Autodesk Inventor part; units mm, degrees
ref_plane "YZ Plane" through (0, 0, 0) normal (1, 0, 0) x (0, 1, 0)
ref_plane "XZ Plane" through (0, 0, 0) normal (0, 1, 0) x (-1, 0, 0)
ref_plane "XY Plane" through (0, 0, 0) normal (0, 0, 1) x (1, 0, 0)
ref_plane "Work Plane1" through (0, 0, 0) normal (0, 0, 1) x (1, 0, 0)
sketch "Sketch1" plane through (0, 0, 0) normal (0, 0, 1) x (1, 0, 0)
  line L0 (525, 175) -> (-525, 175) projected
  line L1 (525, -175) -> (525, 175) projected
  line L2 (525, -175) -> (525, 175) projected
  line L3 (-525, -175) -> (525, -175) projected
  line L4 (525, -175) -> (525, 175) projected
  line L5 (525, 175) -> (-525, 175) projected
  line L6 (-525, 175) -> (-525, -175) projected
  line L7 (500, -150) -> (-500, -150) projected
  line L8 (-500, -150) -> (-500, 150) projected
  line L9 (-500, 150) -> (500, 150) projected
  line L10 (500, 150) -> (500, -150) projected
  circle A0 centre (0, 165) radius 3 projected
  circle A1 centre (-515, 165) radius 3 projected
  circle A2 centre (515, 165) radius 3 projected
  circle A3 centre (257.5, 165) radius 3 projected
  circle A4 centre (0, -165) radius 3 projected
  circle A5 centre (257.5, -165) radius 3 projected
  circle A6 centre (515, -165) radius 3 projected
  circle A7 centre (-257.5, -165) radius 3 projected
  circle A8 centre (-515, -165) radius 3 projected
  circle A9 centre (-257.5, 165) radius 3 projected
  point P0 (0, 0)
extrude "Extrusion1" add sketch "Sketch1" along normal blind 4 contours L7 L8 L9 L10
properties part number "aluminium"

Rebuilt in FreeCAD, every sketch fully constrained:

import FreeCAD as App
import Part
import Sketcher

doc = App.newDocument("Part")
body = doc.addObject("PartDesign::Body", "Body")

# Sketch on XY plane
sketch1 = body.newObject("Sketcher::SketchObject", "Sketch")
sketch1.AttachmentSupport = (doc.getObject("XY_Plane"), [""])
sketch1.MapMode = "FlatFace"
sketch1.addGeometry([
    Part.LineSegment(App.Vector(-500, -150, 0), App.Vector(500, -150, 0)),
    Part.LineSegment(App.Vector(500, -150, 0), App.Vector(500, 150, 0)),
    Part.LineSegment(App.Vector(500, 150, 0), App.Vector(-500, 150, 0)),
    Part.LineSegment(App.Vector(-500, 150, 0), App.Vector(-500, -150, 0)),
], False)
sketch1.addConstraint([
    Sketcher.Constraint("Coincident", 0, 2, 1, 1),
    Sketcher.Constraint("Coincident", 1, 2, 2, 1),
    Sketcher.Constraint("Coincident", 2, 2, 3, 1),
    Sketcher.Constraint("Coincident", 3, 2, 0, 1),
    Sketcher.Constraint("Horizontal", 0),
    Sketcher.Constraint("Vertical", 1),
    Sketcher.Constraint("Horizontal", 2),
    Sketcher.Constraint("Vertical", 3),
    Sketcher.Constraint("Symmetric", 0, 2, 2, 2, -1, 1),
    Sketcher.Constraint("DistanceX", 0, 1, 0, 2, 1000.0),
    Sketcher.Constraint("DistanceY", 1, 1, 1, 2, 300.0),
])
pad1 = body.newObject("PartDesign::Pad", "Pad")
pad1.Profile = sketch1
pad1.Length = 4

doc.recompute()
